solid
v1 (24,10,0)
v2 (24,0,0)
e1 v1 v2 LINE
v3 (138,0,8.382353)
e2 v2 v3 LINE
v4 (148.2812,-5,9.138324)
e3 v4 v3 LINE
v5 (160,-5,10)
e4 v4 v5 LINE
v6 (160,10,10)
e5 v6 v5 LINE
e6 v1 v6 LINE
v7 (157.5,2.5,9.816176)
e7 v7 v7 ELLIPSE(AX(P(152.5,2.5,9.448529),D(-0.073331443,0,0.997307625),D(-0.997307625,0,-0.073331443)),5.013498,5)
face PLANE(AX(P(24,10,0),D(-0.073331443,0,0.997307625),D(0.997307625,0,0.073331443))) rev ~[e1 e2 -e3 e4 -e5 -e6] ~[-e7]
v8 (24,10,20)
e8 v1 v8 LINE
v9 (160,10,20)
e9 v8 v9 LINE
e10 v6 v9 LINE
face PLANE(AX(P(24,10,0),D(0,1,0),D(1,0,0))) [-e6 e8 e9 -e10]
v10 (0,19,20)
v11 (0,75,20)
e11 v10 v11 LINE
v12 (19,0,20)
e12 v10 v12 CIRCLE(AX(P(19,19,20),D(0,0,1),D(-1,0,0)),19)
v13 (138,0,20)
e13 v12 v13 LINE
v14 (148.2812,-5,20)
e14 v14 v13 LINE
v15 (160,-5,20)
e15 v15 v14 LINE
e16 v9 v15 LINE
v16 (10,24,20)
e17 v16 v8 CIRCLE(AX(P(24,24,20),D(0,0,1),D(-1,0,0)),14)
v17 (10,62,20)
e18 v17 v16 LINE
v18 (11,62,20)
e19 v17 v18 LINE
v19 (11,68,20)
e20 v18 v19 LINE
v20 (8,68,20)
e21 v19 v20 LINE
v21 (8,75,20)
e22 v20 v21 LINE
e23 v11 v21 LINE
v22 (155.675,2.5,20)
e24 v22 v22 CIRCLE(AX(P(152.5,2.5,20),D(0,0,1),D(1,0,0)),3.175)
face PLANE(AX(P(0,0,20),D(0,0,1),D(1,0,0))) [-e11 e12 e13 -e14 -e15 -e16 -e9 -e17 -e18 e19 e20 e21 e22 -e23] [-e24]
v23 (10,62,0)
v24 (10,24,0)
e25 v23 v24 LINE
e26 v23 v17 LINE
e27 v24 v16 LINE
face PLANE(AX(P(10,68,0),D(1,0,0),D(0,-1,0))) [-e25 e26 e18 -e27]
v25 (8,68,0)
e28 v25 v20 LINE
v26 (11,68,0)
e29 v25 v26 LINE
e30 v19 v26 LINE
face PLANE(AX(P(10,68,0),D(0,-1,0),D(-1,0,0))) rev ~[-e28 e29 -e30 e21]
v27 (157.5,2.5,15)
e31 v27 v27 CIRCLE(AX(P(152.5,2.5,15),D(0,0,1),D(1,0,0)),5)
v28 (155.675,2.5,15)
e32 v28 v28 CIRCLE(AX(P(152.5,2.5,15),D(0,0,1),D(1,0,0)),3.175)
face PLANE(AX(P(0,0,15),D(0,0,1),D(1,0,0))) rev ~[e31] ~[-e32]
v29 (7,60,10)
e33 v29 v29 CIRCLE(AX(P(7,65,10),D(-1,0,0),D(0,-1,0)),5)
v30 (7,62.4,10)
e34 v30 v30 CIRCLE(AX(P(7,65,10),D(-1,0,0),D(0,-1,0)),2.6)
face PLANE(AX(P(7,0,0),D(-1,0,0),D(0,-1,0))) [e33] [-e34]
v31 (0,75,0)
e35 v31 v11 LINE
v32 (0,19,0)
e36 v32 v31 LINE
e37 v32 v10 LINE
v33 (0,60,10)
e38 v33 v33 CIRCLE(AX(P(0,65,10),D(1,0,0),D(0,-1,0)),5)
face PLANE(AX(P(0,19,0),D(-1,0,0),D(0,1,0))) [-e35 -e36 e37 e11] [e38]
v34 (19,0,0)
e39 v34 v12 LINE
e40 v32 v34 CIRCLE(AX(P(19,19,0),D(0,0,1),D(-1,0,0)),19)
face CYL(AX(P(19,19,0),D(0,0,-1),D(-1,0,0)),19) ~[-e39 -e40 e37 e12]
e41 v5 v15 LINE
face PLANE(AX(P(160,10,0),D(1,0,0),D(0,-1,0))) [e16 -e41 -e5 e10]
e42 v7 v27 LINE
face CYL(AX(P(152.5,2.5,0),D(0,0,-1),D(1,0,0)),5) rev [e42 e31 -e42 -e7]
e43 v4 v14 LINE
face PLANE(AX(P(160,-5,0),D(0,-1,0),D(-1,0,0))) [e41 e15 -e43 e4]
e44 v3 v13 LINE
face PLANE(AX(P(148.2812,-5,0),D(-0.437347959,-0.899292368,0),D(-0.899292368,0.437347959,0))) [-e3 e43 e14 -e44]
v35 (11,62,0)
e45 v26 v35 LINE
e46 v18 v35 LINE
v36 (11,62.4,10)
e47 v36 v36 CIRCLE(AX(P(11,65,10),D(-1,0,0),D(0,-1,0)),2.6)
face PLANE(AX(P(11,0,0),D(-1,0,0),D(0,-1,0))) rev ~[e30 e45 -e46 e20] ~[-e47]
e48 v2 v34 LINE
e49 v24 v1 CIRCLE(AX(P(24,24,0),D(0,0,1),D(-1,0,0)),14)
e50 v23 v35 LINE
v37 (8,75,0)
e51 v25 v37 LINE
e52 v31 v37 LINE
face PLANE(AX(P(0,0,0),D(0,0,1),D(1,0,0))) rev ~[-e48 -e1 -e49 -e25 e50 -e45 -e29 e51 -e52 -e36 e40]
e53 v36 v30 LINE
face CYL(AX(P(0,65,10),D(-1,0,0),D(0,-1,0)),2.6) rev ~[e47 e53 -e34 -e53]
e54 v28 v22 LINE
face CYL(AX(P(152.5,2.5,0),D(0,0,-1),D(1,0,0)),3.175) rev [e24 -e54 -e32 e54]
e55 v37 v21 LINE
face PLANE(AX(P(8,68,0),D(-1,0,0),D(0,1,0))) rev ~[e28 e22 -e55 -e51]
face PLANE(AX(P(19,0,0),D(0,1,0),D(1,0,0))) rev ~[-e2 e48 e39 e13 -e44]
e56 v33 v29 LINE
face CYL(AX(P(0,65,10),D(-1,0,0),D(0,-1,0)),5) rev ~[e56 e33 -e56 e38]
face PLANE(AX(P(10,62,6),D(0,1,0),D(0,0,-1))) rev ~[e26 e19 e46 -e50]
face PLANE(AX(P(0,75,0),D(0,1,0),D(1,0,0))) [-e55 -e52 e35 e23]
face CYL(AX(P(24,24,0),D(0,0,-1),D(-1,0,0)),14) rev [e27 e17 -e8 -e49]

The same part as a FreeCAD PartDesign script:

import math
import FreeCAD as App
import Part
import Sketcher
from FreeCAD import Vector
Q = App.Units.Quantity


def add_polygon(sketch, points):
    """Adds a closed chain of lines whose ends are joined by coincident constraints."""
    first, n = sketch.GeometryCount, len(points)
    for a, b in zip(points, points[1:] + points[:1]):
        sketch.addGeometry(Part.LineSegment(App.Vector(*a, 0), App.Vector(*b, 0)), False)
    for i in range(n):
        sketch.addConstraint(Sketcher.Constraint("Coincident", first + i, 2, first + (i + 1) % n, 1))

doc = App.newDocument("Part")
params = doc.addObject("Spreadsheet::Sheet", "Params")
for row, (alias, value) in enumerate([
    ("sketch1_radius", "19 mm"),
    ("sketch1_radius2", "14 mm"),
    ("sketch1_diameter", "6.35 mm"),
    ("sketch1_width", "119 mm"),
    ("sketch1_height", "15 mm"),
    ("pad1_length", "20 mm"),
    ("sketch2_diameter", "10 mm"),
    ("sketch2_diameter2", "6.35 mm"),
    ("pocket1_length", "15 mm"),
    ("sketch3_diameter", "5.2 mm"),
    ("pocket2_length", "10 mm"),
    ("sketch4_diameter", "10 mm"),
    ("sketch4_diameter2", "5.2 mm"),
    ("pocket3_length", "7 mm"),
    ("sketch5_diameter", "5.2 mm"),
    ("sketch5_height", "20 mm"),
    ("sketch5_width", "6 mm"),
    ("pad2_length", "1 mm"),
    ("sketch6_width", "136 mm"),
    ("sketch6_height", "10 mm"),
    ("pocket4_length", "15 mm"),
], start=1):
    params.set(f"A{row}", alias)
    params.set(f"B{row}", "=" + value)
    params.setAlias(f"B{row}", alias)

body = doc.addObject("PartDesign::Body", "Body")

sketch1 = body.newObject("Sketcher::SketchObject", "Sketch")
sketch1.AttachmentSupport = (doc.getObject("XY_Plane"), [""])
sketch1.MapMode = "FlatFace"
sketch1.addGeometry([
    Part.LineSegment(Vector(0, 75, 0), Vector(0, 19, 0)),
    Part.ArcOfCircle(Part.Circle(Vector(19, 19, 0), Vector(0, 0, 1), 19), math.radians(180), math.radians(270)),
    Part.LineSegment(Vector(19, 0, 0), Vector(138, 0, 0)),
    Part.LineSegment(Vector(138, 0, 0), Vector(148.3, -5, 0)),
    Part.LineSegment(Vector(148.3, -5, 0), Vector(160, -5, 0)),
    Part.LineSegment(Vector(160, -5, 0), Vector(160, 10, 0)),
    Part.LineSegment(Vector(160, 10, 0), Vector(24, 10, 0)),
    Part.ArcOfCircle(Part.Circle(Vector(24, 24, 0), Vector(0, 0, 1), 14), math.radians(180), math.radians(270)),
    Part.LineSegment(Vector(10, 24, 0), Vector(10, 68, 0)),
    Part.LineSegment(Vector(10, 68, 0), Vector(8, 68, 0)),
    Part.LineSegment(Vector(8, 68, 0), Vector(8, 75, 0)),
    Part.LineSegment(Vector(8, 75, 0), Vector(0, 75, 0)),
    Part.Circle(Vector(152.5, 2.5, 0), Vector(0, 0, 1), 3.2),
], False)
sketch1.addConstraint([
    Sketcher.Constraint("Tangent", 0, 2, 1, 1),
    Sketcher.Constraint("Tangent", 1, 2, 2, 1),
    Sketcher.Constraint("Coincident", 2, 2, 3, 1),
    Sketcher.Constraint("Coincident", 3, 2, 4, 1),
    Sketcher.Constraint("Coincident", 4, 2, 5, 1),
    Sketcher.Constraint("Coincident", 5, 2, 6, 1),
    Sketcher.Constraint("Tangent", 6, 2, 7, 2),
    Sketcher.Constraint("Tangent", 7, 1, 8, 1),
    Sketcher.Constraint("Coincident", 8, 2, 9, 1),
    Sketcher.Constraint("Coincident", 9, 2, 10, 1),
    Sketcher.Constraint("Coincident", 10, 2, 11, 1),
    Sketcher.Constraint("Coincident", 11, 2, 0, 1),
    Sketcher.Constraint("Vertical", 0),
    Sketcher.Constraint("Horizontal", 2),
    Sketcher.Constraint("Horizontal", 4),
    Sketcher.Constraint("Vertical", 5),
    Sketcher.Constraint("Horizontal", 6),
    Sketcher.Constraint("Vertical", 8),
    Sketcher.Constraint("Horizontal", 9),
    Sketcher.Constraint("Vertical", 10),
    Sketcher.Constraint("Horizontal", 11),
    Sketcher.Constraint("PointOnObject", 0, 2, -2),
    Sketcher.Constraint("PointOnObject", 1, 2, -1),
    Sketcher.Constraint("Radius", 1, Q("19 mm")),
    Sketcher.Constraint("Radius", 7, Q("14 mm")),
    Sketcher.Constraint("Diameter", 12, Q("6.35 mm")),
    Sketcher.Constraint("DistanceX", 2, 1, 2, 2, Q("119 mm")),
    Sketcher.Constraint("DistanceY", 5, 1, 5, 2, Q("15 mm")),
    Sketcher.Constraint("DistanceY", 10, 1, 10, 2, Q("7 mm")),
    Sketcher.Constraint("DistanceX", -1, 1, 4, 2, Q("160 mm")),
    Sketcher.Constraint("DistanceY", -1, 1, 5, 2, Q("10 mm")),
    Sketcher.Constraint("DistanceX", -1, 1, 7, 1, Q("10 mm")),
    Sketcher.Constraint("DistanceY", -1, 1, 10, 2, Q("75 mm")),
    Sketcher.Constraint("DistanceY", 3, 2, 12, 3, Q("7.5 mm")),
    Sketcher.Constraint("DistanceX", 12, 3, 4, 2, Q("7.5 mm")),
    Sketcher.Constraint("DistanceX", 9, 2, 9, 1, Q("2 mm")),
    Sketcher.Constraint("DistanceX", 4, 1, 4, 2, Q("11.7188 mm")),
])
sketch1.setExpression("Constraints[23]", "Params.sketch1_radius")
sketch1.setExpression("Constraints[24]", "Params.sketch1_radius2")
sketch1.setExpression("Constraints[25]", "Params.sketch1_diameter")
sketch1.setExpression("Constraints[26]", "Params.sketch1_width")
sketch1.setExpression("Constraints[27]", "Params.sketch1_height")
pad1 = body.newObject("PartDesign::Pad", "Pad")
pad1.Profile = sketch1
pad1.setExpression("Length", "Params.pad1_length")

sketch2 = body.newObject("Sketcher::SketchObject", "Sketch001")
sketch2.AttachmentSupport = (doc.getObject("XY_Plane"), [""])
sketch2.MapMode = "FlatFace"
sketch2.addGeometry([
    Part.Circle(Vector(152.5, 2.5, 0), Vector(0, 0, 1), 5),
    Part.Circle(Vector(152.5, 2.5, 0), Vector(0, 0, 1), 3.2),
], False)
sketch2.addConstraint([
    Sketcher.Constraint("Coincident", 1, 3, 0, 3),
    Sketcher.Constraint("Diameter", 0, Q("10 mm")),
    Sketcher.Constraint("Diameter", 1, Q("6.35 mm")),
    Sketcher.Constraint("DistanceX", -1, 1, 0, 3, Q("152.5 mm")),
    Sketcher.Constraint("DistanceY", -1, 1, 0, 3, Q("2.5 mm")),
])
sketch2.setExpression("Constraints[1]", "Params.sketch2_diameter")
sketch2.setExpression("Constraints[2]", "Params.sketch2_diameter2")
pocket1 = body.newObject("PartDesign::Pocket", "Pocket")
pocket1.Profile = sketch2
pocket1.setExpression("Length", "Params.pocket1_length")
pocket1.Reversed = True

sketch3 = body.newObject("Sketcher::SketchObject", "Sketch002")
sketch3.AttachmentSupport = (doc.getObject("YZ_Plane"), [""])
sketch3.MapMode = "FlatFace"
sketch3.addGeometry(Part.Circle(Vector(65, 10, 0), Vector(0, 0, 1), 2.6), False)
sketch3.addConstraint([
    Sketcher.Constraint("Diameter", 0, Q("5.2 mm")),
    Sketcher.Constraint("DistanceY", -1, 1, 0, 3, Q("10 mm")),
    Sketcher.Constraint("DistanceX", -1, 1, 0, 3, Q("65 mm")),
])
sketch3.setExpression("Constraints[0]", "Params.sketch3_diameter")
pocket2 = body.newObject("PartDesign::Pocket", "Pocket001")
pocket2.Profile = sketch3
pocket2.setExpression("Length", "Params.pocket2_length")
pocket2.Reversed = True

sketch4 = body.newObject("Sketcher::SketchObject", "Sketch003")
sketch4.AttachmentSupport = (doc.getObject("YZ_Plane"), [""])
sketch4.MapMode = "FlatFace"
sketch4.addGeometry([
    Part.Circle(Vector(65, 10, 0), Vector(0, 0, 1), 5),
    Part.Circle(Vector(65, 10, 0), Vector(0, 0, 1), 2.6),
], False)
sketch4.addConstraint([
    Sketcher.Constraint("Coincident", 1, 3, 0, 3),
    Sketcher.Constraint("Diameter", 0, Q("10 mm")),
    Sketcher.Constraint("Diameter", 1, Q("5.2 mm")),
    Sketcher.Constraint("DistanceY", -1, 1, 0, 3, Q("10 mm")),
    Sketcher.Constraint("DistanceX", -1, 1, 0, 3, Q("65 mm")),
])
sketch4.setExpression("Constraints[1]", "Params.sketch4_diameter")
sketch4.setExpression("Constraints[2]", "Params.sketch4_diameter2")
pocket3 = body.newObject("PartDesign::Pocket", "Pocket002")
pocket3.Profile = sketch4
pocket3.setExpression("Length", "Params.pocket3_length")
pocket3.Reversed = True

sketch5 = body.newObject("Sketcher::SketchObject", "Sketch004")
sketch5.AttachmentSupport = (doc.getObject("YZ_Plane"), [""])
sketch5.MapMode = "FlatFace"
sketch5.AttachmentOffset = App.Placement(Vector(0, 0, 10), App.Rotation())
add_polygon(sketch5, [(68, 0), (62, 0), (62, 20), (68, 20)])
sketch5.addGeometry(Part.Circle(Vector(65, 10, 0), Vector(0, 0, 1), 2.6), False)
sketch5.addConstraint([
    Sketcher.Constraint("Horizontal", 0),
    Sketcher.Constraint("Vertical", 1),
    Sketcher.Constraint("Horizontal", 2),
    Sketcher.Constraint("Vertical", 3),
    Sketcher.Constraint("PointOnObject", 0, 2, -1),
    Sketcher.Constraint("Diameter", 4, Q("5.2 mm")),
    Sketcher.Constraint("DistanceY", 1, 1, 1, 2, Q("20 mm")),
    Sketcher.Constraint("DistanceY", -1, 1, 4, 3, Q("10 mm")),
    Sketcher.Constraint("DistanceX", 0, 2, 0, 1, Q("6 mm")),
    Sketcher.Constraint("DistanceX", -1, 1, 4, 3, Q("65 mm")),
    Sketcher.Constraint("DistanceX", -1, 1, 0, 2, Q("62 mm")),
])
sketch5.setExpression("Constraints[9]", "Params.sketch5_diameter")
sketch5.setExpression("Constraints[10]", "Params.sketch5_height")
sketch5.setExpression("Constraints[12]", "Params.sketch5_width")
pad2 = body.newObject("PartDesign::Pad", "Pad001")
pad2.Profile = sketch5
pad2.setExpression("Length", "Params.pad2_length")

sketch6 = body.newObject("Sketcher::SketchObject", "Sketch005")
sketch6.AttachmentSupport = (doc.getObject("XZ_Plane"), [""])
sketch6.MapMode = "FlatFace"
sketch6.AttachmentOffset = App.Placement(Vector(0, 0, -10), App.Rotation())
add_polygon(sketch6, [(160, 10), (160, 0), (24, 0)])
sketch6.addConstraint([
    Sketcher.Constraint("Vertical", 0),
    Sketcher.Constraint("Horizontal", 1),
    Sketcher.Constraint("PointOnObject", 0, 2, -1),
    Sketcher.Constraint("DistanceX", 1, 2, 1, 1, Q("136 mm")),
    Sketcher.Constraint("DistanceY", 0, 2, 0, 1, Q("10 mm")),
    Sketcher.Constraint("DistanceX", -1, 1, 0, 2, Q("160 mm")),
])
sketch6.setExpression("Constraints[6]", "Params.sketch6_width")
sketch6.setExpression("Constraints[7]", "Params.sketch6_height")
pocket4 = body.newObject("PartDesign::Pocket", "Pocket003")
pocket4.Profile = sketch6
pocket4.setExpression("Length", "Params.pocket4_length")
pocket4.Reversed = True

doc.recompute()
